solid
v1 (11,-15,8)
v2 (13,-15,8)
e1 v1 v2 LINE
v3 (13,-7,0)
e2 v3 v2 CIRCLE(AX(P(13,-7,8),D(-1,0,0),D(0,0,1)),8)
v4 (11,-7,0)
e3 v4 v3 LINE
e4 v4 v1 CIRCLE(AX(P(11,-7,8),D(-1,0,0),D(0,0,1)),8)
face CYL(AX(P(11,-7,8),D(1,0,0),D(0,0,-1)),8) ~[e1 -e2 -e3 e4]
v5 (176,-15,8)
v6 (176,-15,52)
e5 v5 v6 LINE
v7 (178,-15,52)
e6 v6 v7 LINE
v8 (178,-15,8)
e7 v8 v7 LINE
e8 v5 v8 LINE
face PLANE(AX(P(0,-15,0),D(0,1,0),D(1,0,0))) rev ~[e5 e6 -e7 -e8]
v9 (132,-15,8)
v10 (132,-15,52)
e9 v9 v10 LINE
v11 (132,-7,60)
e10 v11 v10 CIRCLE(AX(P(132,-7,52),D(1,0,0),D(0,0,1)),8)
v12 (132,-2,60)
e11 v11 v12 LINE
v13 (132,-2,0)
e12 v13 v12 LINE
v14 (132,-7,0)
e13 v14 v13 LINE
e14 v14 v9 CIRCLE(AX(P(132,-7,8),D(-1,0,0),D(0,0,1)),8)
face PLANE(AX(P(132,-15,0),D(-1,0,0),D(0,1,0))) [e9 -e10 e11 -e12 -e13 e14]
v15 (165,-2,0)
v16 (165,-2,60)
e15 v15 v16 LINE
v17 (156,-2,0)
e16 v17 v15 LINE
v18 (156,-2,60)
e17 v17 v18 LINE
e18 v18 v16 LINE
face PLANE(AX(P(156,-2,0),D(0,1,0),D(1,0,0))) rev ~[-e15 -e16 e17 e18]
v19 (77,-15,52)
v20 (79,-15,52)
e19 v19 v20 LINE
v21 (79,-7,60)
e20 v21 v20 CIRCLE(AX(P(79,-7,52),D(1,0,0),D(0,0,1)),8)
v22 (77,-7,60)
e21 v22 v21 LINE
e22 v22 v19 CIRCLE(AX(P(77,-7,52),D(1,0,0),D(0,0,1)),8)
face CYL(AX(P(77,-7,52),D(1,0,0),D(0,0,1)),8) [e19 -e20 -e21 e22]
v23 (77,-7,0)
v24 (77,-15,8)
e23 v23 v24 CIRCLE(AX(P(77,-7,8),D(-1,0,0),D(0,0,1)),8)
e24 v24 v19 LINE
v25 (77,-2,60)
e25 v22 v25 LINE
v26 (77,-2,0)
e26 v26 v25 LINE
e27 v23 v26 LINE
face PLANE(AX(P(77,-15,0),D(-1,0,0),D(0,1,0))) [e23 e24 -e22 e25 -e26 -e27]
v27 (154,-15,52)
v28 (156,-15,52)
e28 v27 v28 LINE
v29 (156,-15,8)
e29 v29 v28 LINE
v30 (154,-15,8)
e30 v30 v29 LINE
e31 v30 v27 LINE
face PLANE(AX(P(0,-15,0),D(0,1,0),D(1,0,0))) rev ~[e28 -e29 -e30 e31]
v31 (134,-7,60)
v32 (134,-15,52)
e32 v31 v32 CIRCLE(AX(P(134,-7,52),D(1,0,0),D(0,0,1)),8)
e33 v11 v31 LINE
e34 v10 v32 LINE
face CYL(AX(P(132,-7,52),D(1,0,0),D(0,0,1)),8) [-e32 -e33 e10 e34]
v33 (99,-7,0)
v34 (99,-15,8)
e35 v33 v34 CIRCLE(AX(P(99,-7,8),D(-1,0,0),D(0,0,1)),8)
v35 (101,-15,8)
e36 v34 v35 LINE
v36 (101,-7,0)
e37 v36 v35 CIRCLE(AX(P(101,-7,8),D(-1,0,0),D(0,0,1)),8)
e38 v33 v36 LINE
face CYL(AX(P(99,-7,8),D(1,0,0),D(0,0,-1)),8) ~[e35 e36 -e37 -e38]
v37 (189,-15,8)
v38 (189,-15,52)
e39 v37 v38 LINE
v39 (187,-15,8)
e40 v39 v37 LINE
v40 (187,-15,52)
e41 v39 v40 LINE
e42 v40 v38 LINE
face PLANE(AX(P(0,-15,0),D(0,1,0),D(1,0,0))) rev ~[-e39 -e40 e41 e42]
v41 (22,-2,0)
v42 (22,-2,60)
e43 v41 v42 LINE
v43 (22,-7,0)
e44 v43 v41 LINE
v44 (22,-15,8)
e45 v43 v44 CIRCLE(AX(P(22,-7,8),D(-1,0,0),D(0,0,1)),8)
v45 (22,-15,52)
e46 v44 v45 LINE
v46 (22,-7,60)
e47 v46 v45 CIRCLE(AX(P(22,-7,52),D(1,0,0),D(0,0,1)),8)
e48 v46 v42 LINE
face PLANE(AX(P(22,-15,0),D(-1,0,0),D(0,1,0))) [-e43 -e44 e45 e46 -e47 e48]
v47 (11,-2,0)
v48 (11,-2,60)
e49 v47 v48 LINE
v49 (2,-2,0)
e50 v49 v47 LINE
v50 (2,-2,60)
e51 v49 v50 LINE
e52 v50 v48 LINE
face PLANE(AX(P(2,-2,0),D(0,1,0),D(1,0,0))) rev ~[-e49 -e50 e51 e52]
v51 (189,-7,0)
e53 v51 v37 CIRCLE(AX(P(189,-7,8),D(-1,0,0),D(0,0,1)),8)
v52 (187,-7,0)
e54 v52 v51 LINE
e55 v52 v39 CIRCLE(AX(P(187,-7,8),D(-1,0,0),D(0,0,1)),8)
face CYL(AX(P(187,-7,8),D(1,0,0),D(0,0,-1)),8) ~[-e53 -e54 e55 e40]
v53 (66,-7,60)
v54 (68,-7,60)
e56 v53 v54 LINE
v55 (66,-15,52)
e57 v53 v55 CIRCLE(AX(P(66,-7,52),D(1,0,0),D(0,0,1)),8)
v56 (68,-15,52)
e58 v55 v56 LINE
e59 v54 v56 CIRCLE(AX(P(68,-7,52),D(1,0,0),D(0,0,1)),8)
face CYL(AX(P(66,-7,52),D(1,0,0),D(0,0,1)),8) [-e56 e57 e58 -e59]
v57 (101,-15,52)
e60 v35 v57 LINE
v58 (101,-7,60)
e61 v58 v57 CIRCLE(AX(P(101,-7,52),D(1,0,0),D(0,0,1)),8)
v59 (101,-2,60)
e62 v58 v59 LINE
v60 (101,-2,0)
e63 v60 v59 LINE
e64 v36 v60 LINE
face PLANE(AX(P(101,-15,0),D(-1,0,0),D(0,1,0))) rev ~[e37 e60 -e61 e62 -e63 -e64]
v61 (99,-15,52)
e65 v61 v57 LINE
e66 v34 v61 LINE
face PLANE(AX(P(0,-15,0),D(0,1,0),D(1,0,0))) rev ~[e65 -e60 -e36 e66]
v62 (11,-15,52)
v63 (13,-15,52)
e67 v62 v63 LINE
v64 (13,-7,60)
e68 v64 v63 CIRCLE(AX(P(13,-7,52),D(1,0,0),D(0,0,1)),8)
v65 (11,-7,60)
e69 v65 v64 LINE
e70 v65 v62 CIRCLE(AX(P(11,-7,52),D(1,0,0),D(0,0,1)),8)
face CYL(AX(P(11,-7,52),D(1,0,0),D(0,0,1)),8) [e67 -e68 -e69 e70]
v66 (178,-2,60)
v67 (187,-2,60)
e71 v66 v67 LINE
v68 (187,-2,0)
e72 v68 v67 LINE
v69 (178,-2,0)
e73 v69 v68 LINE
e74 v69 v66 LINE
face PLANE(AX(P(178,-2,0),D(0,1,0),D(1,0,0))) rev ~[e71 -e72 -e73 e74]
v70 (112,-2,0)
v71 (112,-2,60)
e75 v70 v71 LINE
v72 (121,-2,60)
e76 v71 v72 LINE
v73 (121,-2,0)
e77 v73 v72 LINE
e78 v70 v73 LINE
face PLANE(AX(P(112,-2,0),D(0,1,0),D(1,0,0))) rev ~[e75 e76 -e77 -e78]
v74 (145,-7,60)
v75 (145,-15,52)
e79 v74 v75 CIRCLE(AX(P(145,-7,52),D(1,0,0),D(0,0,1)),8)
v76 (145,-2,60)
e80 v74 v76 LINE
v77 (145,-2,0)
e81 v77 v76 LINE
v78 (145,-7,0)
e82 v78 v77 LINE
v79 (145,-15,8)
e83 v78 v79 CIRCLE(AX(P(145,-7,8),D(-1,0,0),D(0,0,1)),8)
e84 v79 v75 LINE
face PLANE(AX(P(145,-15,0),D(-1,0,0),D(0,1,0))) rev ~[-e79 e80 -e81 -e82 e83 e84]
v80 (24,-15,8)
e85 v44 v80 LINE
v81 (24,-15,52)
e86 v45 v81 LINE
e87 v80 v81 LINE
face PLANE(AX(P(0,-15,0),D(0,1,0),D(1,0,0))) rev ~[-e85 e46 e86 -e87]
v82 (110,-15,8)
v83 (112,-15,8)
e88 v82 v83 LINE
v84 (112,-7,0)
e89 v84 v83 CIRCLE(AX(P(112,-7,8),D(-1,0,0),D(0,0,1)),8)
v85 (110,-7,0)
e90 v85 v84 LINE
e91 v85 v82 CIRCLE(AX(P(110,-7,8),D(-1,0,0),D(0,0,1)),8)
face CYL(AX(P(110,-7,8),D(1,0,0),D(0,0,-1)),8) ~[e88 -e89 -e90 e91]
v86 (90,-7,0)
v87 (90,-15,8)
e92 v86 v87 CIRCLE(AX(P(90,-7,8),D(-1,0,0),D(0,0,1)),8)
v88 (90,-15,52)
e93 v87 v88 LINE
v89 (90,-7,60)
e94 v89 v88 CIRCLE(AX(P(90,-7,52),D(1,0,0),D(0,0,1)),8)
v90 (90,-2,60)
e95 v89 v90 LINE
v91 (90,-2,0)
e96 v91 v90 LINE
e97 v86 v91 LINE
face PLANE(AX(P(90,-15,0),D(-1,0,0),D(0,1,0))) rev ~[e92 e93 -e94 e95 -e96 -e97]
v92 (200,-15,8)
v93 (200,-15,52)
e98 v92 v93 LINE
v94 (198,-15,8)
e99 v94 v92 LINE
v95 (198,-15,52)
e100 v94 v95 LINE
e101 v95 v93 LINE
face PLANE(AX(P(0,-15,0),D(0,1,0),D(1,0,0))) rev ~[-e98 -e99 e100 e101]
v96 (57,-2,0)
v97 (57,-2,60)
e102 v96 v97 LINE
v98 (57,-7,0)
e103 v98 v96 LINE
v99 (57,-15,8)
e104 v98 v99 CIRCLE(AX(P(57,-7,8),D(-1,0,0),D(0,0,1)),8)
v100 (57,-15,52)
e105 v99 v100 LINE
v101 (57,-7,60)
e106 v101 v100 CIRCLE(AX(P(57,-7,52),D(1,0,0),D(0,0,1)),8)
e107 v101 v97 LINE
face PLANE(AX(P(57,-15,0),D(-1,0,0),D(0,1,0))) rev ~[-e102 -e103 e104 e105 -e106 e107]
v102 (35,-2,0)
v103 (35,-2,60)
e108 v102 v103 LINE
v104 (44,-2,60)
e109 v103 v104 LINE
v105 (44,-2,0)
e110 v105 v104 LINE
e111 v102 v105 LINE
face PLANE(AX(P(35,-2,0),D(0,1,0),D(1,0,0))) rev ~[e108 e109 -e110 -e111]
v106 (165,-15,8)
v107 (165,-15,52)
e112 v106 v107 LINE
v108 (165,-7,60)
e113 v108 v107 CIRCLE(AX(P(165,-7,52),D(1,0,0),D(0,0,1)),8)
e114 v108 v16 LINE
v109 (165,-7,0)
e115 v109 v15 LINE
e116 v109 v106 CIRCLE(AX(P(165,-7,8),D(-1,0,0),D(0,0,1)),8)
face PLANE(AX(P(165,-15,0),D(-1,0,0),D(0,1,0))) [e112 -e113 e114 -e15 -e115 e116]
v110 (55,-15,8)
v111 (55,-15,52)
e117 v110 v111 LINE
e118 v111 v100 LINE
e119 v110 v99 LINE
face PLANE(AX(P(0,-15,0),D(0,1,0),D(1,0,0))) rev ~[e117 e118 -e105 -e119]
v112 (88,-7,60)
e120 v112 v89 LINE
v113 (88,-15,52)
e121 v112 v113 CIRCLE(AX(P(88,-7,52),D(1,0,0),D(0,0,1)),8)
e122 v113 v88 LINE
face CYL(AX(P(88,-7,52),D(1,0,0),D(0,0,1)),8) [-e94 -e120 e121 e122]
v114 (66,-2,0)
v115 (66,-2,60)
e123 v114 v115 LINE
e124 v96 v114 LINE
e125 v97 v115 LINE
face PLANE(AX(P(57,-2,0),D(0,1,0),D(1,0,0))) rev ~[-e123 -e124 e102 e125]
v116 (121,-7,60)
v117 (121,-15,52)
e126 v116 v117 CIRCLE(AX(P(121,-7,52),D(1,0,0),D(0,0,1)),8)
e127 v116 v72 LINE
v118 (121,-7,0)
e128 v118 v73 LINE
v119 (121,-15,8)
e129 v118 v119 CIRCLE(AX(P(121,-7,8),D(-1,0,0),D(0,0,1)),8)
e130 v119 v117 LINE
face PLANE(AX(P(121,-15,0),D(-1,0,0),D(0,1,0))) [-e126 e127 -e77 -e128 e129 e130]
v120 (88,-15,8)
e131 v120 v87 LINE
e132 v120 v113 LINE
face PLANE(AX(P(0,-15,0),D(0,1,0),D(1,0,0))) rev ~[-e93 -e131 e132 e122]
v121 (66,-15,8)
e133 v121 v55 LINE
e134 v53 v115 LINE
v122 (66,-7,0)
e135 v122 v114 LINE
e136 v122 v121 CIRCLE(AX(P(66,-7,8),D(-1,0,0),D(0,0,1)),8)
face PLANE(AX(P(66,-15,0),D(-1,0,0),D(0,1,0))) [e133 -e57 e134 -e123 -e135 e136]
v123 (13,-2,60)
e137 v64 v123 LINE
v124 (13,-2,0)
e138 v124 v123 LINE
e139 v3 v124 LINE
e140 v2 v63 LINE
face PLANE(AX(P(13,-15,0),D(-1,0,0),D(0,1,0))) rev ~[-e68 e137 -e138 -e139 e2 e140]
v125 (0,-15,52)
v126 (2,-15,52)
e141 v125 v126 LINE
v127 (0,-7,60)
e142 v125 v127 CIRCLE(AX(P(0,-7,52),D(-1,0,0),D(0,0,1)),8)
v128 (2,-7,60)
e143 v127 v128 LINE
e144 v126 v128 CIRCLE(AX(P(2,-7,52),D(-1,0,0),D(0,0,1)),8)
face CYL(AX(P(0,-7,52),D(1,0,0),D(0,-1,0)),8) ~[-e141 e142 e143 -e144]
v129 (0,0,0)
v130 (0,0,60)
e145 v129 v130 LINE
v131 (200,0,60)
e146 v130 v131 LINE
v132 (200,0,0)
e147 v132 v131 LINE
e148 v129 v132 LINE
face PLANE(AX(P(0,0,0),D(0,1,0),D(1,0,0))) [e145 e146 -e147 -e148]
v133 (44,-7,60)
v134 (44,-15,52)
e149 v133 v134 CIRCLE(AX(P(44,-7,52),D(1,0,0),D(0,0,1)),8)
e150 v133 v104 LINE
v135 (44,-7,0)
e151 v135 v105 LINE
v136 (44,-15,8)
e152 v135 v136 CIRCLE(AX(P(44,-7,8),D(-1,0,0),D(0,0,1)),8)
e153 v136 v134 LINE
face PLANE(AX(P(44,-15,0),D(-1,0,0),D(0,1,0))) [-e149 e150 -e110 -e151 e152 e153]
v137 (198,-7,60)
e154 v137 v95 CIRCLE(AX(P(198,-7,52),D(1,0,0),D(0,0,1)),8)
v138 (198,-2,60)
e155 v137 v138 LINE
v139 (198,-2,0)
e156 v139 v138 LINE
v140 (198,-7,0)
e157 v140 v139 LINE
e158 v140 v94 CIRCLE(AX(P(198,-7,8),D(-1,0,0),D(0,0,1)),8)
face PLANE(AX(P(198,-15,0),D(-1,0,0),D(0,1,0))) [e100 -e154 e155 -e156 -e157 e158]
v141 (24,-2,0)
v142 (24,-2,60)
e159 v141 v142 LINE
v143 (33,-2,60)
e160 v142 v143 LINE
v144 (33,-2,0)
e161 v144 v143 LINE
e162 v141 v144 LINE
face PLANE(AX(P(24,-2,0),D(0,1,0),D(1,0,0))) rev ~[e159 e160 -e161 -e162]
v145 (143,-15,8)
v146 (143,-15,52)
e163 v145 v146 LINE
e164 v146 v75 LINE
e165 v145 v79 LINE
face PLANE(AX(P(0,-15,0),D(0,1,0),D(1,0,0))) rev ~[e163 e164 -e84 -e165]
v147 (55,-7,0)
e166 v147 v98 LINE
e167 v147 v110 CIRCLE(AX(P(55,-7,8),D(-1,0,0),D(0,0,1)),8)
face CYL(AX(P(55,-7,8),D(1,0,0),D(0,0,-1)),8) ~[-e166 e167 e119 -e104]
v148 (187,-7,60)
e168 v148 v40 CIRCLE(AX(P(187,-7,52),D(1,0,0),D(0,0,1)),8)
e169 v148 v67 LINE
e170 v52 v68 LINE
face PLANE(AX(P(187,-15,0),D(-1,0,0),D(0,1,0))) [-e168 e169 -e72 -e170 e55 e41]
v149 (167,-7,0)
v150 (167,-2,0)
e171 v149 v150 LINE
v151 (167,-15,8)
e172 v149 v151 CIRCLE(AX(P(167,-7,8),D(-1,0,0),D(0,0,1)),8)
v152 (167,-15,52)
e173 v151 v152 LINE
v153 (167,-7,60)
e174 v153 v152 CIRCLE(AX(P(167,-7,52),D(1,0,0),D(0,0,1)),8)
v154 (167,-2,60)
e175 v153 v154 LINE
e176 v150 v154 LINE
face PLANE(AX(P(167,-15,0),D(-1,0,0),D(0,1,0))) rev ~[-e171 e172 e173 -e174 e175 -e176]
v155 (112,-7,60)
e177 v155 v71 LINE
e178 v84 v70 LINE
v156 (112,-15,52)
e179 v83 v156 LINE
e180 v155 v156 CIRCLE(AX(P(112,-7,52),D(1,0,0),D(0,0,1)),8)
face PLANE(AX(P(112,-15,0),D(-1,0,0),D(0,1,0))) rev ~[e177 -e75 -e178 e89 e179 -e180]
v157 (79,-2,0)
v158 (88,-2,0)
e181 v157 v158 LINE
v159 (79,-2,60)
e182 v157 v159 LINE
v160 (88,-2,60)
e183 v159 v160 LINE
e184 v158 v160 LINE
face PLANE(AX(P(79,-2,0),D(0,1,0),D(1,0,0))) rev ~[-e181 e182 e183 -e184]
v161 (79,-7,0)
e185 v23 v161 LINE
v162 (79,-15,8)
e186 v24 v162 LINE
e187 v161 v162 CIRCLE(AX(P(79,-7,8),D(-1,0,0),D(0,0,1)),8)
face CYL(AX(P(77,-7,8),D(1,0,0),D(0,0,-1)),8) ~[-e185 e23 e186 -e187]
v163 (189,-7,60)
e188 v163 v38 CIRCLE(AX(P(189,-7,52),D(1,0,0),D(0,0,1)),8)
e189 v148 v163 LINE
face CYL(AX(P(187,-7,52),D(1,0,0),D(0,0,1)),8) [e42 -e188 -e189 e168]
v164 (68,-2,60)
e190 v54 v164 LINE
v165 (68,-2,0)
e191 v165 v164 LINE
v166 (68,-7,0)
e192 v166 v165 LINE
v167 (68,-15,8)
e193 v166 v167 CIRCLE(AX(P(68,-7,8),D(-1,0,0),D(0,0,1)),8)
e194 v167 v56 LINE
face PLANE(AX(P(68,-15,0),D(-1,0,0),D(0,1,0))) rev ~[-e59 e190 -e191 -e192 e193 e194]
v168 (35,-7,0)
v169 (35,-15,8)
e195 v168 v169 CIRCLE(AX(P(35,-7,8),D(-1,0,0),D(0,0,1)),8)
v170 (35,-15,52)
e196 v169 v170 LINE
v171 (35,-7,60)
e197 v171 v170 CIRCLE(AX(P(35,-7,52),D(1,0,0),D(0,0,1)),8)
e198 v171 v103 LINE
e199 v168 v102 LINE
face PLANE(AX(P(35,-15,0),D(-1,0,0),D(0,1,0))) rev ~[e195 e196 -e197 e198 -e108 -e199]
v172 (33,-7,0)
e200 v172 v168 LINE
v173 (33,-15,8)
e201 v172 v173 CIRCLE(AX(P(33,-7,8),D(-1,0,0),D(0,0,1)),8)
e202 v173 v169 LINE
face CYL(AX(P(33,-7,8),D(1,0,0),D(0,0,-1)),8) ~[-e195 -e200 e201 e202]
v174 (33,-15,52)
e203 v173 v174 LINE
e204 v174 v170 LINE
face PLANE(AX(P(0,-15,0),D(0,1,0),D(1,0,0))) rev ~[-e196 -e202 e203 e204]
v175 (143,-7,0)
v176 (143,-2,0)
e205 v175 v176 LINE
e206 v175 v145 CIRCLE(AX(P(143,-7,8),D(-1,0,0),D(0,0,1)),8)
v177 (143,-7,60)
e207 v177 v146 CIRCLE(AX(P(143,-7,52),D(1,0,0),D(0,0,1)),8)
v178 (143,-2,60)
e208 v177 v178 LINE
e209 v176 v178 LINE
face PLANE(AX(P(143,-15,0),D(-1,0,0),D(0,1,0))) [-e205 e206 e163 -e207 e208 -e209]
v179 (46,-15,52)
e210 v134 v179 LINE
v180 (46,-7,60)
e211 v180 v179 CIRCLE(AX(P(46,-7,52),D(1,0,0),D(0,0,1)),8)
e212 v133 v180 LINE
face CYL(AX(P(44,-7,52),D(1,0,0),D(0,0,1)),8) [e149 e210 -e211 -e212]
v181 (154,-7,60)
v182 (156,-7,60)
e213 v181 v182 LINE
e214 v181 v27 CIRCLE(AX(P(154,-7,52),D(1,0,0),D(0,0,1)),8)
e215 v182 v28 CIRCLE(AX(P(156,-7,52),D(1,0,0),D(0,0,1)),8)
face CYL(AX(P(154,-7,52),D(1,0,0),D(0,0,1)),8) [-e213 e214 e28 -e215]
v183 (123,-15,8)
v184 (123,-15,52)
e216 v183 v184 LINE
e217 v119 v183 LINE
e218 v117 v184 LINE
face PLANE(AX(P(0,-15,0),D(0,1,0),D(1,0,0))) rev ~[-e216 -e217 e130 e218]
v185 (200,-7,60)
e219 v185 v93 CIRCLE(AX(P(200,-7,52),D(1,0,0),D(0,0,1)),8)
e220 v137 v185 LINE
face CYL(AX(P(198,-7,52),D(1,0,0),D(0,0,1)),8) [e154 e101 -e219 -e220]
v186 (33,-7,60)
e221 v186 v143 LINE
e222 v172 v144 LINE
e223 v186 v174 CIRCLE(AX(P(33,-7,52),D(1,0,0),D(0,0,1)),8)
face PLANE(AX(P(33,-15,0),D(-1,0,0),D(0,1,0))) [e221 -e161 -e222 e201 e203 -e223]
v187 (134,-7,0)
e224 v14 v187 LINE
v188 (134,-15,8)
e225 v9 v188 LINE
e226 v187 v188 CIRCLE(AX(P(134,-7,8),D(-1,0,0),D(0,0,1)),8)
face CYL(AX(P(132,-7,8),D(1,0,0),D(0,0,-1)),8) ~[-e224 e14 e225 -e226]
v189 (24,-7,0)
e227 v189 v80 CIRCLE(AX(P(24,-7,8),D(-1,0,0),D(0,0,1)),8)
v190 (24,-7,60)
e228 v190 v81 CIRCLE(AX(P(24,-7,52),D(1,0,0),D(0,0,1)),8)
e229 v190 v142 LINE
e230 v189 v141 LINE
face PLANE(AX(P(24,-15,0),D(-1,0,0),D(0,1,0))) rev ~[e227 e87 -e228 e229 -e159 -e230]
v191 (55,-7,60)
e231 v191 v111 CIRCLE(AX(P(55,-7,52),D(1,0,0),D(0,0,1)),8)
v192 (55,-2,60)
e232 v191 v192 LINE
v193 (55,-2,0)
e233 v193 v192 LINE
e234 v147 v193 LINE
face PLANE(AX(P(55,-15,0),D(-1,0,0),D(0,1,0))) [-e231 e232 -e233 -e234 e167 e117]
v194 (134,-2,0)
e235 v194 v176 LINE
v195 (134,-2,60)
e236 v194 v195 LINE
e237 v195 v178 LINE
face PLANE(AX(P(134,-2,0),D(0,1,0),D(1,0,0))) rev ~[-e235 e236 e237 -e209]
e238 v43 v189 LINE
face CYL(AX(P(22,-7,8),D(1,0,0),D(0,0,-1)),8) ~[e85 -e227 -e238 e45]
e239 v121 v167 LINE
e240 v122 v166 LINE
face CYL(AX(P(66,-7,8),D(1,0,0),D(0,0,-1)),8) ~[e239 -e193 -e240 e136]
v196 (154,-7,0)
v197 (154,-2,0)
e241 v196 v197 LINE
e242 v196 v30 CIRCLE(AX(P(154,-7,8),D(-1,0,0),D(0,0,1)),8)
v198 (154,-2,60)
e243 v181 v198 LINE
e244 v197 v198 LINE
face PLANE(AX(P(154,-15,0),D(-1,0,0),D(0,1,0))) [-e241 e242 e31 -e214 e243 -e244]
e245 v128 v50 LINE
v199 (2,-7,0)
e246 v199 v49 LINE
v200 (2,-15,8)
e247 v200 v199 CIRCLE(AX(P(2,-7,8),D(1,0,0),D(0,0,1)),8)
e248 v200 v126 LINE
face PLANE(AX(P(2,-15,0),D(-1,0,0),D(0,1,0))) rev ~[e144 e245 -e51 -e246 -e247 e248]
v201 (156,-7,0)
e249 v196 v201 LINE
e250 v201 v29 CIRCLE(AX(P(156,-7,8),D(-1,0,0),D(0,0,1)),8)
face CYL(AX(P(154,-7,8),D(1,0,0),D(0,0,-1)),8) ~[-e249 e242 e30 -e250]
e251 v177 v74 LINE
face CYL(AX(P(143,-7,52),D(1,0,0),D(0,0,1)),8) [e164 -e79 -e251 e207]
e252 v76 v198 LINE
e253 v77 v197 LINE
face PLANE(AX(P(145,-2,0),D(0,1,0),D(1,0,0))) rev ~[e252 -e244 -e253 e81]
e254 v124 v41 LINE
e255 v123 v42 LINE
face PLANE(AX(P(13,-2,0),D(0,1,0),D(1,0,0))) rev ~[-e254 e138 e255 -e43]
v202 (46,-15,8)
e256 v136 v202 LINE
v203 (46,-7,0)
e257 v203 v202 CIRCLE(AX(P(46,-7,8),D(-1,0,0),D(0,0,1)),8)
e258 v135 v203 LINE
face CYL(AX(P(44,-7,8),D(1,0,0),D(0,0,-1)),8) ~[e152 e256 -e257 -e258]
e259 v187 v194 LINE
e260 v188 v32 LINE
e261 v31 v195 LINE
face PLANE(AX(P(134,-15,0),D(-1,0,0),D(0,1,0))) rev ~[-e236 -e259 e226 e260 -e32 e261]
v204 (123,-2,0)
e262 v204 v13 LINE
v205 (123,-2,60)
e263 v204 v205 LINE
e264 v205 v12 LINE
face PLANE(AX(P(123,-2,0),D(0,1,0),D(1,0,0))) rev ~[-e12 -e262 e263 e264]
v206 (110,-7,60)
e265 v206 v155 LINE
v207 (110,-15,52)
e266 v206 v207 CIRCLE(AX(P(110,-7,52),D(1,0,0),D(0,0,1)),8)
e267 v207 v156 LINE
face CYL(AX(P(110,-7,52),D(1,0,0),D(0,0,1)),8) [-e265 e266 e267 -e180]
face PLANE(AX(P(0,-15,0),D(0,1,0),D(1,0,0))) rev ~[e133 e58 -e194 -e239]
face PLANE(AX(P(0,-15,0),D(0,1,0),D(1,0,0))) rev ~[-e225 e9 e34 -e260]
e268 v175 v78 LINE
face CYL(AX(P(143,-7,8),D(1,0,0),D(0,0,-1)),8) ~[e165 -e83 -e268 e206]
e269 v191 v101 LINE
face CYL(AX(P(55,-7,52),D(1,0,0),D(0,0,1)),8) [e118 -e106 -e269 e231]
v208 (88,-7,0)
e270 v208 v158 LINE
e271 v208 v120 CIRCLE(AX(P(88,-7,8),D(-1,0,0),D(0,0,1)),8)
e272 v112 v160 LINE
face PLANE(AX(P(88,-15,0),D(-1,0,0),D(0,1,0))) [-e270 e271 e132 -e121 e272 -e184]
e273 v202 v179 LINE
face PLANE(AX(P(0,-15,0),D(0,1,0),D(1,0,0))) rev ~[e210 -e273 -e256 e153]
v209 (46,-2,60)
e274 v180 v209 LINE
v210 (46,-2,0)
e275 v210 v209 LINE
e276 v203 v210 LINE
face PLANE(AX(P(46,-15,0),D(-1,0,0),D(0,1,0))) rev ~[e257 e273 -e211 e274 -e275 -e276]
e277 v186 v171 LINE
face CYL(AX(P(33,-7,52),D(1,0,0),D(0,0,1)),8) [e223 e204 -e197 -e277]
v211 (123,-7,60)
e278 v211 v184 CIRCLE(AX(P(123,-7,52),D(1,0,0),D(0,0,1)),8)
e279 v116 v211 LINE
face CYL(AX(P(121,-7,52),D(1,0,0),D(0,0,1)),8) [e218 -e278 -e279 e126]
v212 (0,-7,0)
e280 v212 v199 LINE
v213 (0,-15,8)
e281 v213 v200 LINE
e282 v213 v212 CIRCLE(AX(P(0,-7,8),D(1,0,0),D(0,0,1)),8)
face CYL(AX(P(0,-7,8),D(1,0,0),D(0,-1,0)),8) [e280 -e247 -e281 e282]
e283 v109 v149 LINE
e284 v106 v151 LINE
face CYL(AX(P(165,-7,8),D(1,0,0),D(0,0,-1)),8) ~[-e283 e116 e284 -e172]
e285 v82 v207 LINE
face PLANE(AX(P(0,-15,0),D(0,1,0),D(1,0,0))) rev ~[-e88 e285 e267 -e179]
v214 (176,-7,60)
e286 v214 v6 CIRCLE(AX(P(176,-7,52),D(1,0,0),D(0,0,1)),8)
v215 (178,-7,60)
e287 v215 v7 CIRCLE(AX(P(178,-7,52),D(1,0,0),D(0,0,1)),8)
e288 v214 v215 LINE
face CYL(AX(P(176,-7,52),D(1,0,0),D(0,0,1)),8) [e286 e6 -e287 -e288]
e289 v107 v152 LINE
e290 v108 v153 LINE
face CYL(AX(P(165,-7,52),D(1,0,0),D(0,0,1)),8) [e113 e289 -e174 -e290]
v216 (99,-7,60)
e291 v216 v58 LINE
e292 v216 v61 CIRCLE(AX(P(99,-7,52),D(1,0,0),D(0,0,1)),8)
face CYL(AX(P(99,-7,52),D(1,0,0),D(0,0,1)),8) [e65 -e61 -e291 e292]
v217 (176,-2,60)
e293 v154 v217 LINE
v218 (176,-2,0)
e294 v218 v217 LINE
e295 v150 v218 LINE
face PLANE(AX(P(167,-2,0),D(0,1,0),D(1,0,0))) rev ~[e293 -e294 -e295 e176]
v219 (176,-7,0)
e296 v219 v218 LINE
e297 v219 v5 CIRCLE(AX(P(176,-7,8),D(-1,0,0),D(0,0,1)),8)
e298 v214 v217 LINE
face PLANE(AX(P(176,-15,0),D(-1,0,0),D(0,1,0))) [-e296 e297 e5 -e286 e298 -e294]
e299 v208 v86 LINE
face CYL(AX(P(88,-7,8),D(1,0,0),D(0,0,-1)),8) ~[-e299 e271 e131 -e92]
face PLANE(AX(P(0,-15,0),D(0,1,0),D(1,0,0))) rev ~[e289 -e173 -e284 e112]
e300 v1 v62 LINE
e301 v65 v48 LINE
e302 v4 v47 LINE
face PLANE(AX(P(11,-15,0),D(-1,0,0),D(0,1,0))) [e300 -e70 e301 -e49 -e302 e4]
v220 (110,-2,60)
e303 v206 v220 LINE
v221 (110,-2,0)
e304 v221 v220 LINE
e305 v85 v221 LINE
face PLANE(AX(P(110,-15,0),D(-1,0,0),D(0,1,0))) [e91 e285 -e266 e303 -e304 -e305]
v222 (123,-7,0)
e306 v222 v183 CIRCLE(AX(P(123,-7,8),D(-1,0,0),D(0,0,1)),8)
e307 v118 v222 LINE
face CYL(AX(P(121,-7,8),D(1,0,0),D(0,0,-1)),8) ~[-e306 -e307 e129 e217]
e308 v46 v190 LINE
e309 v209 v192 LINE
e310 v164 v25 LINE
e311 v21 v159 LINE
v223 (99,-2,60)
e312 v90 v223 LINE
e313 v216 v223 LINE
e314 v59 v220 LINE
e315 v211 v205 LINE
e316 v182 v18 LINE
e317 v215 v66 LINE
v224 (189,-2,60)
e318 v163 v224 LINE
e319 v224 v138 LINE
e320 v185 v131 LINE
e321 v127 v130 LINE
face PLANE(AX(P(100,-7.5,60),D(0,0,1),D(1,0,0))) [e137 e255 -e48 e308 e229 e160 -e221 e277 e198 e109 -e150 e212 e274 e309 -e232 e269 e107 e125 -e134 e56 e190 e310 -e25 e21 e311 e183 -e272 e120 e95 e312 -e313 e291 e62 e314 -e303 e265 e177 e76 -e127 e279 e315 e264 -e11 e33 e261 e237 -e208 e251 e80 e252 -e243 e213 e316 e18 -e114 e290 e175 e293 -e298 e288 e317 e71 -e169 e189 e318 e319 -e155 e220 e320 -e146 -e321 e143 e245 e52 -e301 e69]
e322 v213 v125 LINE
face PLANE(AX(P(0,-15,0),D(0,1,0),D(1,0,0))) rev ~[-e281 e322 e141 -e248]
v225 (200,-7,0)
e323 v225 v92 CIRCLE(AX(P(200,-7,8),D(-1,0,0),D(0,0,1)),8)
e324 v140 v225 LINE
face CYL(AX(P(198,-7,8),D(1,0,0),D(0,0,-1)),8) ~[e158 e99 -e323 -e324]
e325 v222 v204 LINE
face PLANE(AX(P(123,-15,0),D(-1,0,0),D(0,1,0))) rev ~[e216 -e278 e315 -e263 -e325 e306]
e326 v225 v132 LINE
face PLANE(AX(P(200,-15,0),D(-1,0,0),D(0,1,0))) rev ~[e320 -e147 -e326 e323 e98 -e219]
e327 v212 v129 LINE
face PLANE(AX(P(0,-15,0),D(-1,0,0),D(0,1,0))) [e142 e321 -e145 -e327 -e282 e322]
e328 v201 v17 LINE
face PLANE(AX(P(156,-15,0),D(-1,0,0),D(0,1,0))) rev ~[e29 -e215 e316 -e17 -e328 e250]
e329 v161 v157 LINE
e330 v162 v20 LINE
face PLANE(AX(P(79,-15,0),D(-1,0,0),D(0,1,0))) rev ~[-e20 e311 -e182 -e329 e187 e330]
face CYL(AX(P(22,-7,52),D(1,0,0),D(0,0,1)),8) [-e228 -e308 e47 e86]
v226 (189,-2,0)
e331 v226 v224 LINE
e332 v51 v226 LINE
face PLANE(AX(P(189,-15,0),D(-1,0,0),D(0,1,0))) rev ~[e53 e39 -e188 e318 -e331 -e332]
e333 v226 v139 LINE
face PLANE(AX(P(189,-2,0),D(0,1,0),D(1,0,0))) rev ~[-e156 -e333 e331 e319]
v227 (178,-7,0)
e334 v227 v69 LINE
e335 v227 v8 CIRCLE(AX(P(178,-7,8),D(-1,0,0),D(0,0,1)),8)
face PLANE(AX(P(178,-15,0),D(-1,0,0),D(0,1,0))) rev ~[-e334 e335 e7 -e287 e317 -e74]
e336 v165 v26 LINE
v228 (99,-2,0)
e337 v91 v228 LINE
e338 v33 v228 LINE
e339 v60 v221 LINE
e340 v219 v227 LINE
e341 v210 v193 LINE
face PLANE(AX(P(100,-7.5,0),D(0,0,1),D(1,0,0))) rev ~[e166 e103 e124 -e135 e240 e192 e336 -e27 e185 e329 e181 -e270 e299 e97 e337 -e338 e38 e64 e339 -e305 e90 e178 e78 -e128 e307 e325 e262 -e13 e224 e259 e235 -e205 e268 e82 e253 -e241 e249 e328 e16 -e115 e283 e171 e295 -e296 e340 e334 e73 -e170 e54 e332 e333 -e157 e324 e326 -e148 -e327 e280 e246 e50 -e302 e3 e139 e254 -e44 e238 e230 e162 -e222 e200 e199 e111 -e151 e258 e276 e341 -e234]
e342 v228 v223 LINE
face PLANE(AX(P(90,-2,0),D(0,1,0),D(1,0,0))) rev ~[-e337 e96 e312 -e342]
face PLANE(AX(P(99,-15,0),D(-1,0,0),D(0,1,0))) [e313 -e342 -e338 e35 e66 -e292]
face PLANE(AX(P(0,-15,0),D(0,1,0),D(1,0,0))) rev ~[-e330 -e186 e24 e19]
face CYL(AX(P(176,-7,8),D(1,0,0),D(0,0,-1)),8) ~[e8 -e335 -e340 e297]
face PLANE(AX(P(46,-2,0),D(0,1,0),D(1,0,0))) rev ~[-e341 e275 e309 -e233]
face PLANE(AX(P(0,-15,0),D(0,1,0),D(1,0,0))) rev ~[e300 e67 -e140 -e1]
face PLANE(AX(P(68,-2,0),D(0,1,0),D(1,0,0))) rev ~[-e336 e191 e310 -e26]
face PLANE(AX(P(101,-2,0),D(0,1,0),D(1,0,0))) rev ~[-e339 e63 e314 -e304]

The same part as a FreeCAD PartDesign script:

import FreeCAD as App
import Part
import Sketcher


def edges_at(feature, points):
    """Names of the edges that pass closest to the given points."""
    edges = feature.Shape.Edges
    near = lambda p: min(range(len(edges)), key=lambda i: edges[i].distToShape(Part.Vertex(*p))[0])
    return sorted({f"Edge{near(p) + 1}" for p in points})


def add_polygon(sketch, points):
    """Adds a closed chain of lines whose ends are joined by coincident constraints."""
    first, n = sketch.GeometryCount, len(points)
    for a, b in zip(points, points[1:] + points[:1]):
        sketch.addGeometry(Part.LineSegment(App.Vector(*a, 0), App.Vector(*b, 0)), False)
    for i in range(n):
        sketch.addConstraint(Sketcher.Constraint("Coincident", first + i, 2, first + (i + 1) % n, 1))

doc = App.newDocument("Part")
body = doc.addObject("PartDesign::Body", "Body")

sketch1 = doc.addObject("Sketcher::SketchObject", "Sketch")
body.addObject(sketch1)
sketch1.AttachmentSupport = (doc.XY_Plane, [""])
sketch1.MapMode = "FlatFace"
add_polygon(sketch1, [(145, -2), (145, -15), (154, -15), (154, -2)])
sketch1.addConstraint([
    Sketcher.Constraint("Vertical", 0),
    Sketcher.Constraint("Horizontal", 1),
    Sketcher.Constraint("Vertical", 2),
    Sketcher.Constraint("Horizontal", 3),
    Sketcher.Constraint("DistanceX", 1, 1, 1, 2, 9.0),
    Sketcher.Constraint("DistanceY", 0, 2, 0, 1, 13.0),
    Sketcher.Constraint("DistanceX", -1, 1, 0, 2, 145.0),
    Sketcher.Constraint("DistanceY", 0, 2, -1, 1, 15.0),
])
pad1 = doc.addObject("PartDesign::Pad", "Pad")
body.addObject(pad1)
pad1.Profile = sketch1
pad1.Length = 60
body2 = doc.addObject("PartDesign::Body", "Body001")

sketch2 = doc.addObject("Sketcher::SketchObject", "Sketch001")
body2.addObject(sketch2)
sketch2.AttachmentSupport = (doc.getObject("XY_Plane001"), [""])
sketch2.MapMode = "FlatFace"
add_polygon(sketch2, [(13, -2), (13, -15), (22, -15), (22, -2)])
sketch2.addConstraint([
    Sketcher.Constraint("Vertical", 0),
    Sketcher.Constraint("Horizontal", 1),
    Sketcher.Constraint("Vertical", 2),
    Sketcher.Constraint("Horizontal", 3),
    Sketcher.Constraint("DistanceX", 1, 1, 1, 2, 9.0),
    Sketcher.Constraint("DistanceY", 0, 2, 0, 1, 13.0),
    Sketcher.Constraint("DistanceX", -1, 1, 0, 2, 13.0),
    Sketcher.Constraint("DistanceY", 0, 2, -1, 1, 15.0),
])
pad2 = doc.addObject("PartDesign::Pad", "Pad001")
body2.addObject(pad2)
pad2.Profile = sketch2
pad2.Length = 60
body3 = doc.addObject("PartDesign::Body", "Body002")

sketch3 = doc.addObject("Sketcher::SketchObject", "Sketch002")
body3.addObject(sketch3)
sketch3.AttachmentSupport = (doc.getObject("XY_Plane002"), [""])
sketch3.MapMode = "FlatFace"
add_polygon(sketch3, [(24, -2), (24, -15), (33, -15), (33, -2)])
sketch3.addConstraint([
    Sketcher.Constraint("Vertical", 0),
    Sketcher.Constraint("Horizontal", 1),
    Sketcher.Constraint("Vertical", 2),
    Sketcher.Constraint("Horizontal", 3),
    Sketcher.Constraint("DistanceX", 1, 1, 1, 2, 9.0),
    Sketcher.Constraint("DistanceY", 0, 2, 0, 1, 13.0),
    Sketcher.Constraint("DistanceX", -1, 1, 0, 2, 24.0),
    Sketcher.Constraint("DistanceY", 0, 2, -1, 1, 15.0),
])
pad3 = doc.addObject("PartDesign::Pad", "Pad002")
body3.addObject(pad3)
pad3.Profile = sketch3
pad3.Length = 60
body4 = doc.addObject("PartDesign::Body", "Body003")

sketch4 = doc.addObject("Sketcher::SketchObject", "Sketch003")
body4.addObject(sketch4)
sketch4.AttachmentSupport = (doc.getObject("XY_Plane003"), [""])
sketch4.MapMode = "FlatFace"
add_polygon(sketch4, [(35, -2), (35, -15), (44, -15), (44, -2)])
sketch4.addConstraint([
    Sketcher.Constraint("Vertical", 0),
    Sketcher.Constraint("Horizontal", 1),
    Sketcher.Constraint("Vertical", 2),
    Sketcher.Constraint("Horizontal", 3),
    Sketcher.Constraint("DistanceX", 1, 1, 1, 2, 9.0),
    Sketcher.Constraint("DistanceY", 0, 2, 0, 1, 13.0),
    Sketcher.Constraint("DistanceX", -1, 1, 0, 2, 35.0),
    Sketcher.Constraint("DistanceY", 0, 2, -1, 1, 15.0),
])
pad4 = doc.addObject("PartDesign::Pad", "Pad003")
body4.addObject(pad4)
pad4.Profile = sketch4
pad4.Length = 60
body5 = doc.addObject("PartDesign::Body", "Body004")

sketch5 = doc.addObject("Sketcher::SketchObject", "Sketch004")
body5.addObject(sketch5)
sketch5.AttachmentSupport = (doc.getObject("XY_Plane004"), [""])
sketch5.MapMode = "FlatFace"
add_polygon(sketch5, [(46, -2), (46, -15), (55, -15), (55, -2)])
sketch5.addConstraint([
    Sketcher.Constraint("Vertical", 0),
    Sketcher.Constraint("Horizontal", 1),
    Sketcher.Constraint("Vertical", 2),
    Sketcher.Constraint("Horizontal", 3),
    Sketcher.Constraint("DistanceX", 1, 1, 1, 2, 9.0),
    Sketcher.Constraint("DistanceY", 0, 2, 0, 1, 13.0),
    Sketcher.Constraint("DistanceX", -1, 1, 0, 2, 46.0),
    Sketcher.Constraint("DistanceY", 0, 2, -1, 1, 15.0),
])
pad5 = doc.addObject("PartDesign::Pad", "Pad004")
body5.addObject(pad5)
pad5.Profile = sketch5
pad5.Length = 60
body6 = doc.addObject("PartDesign::Body", "Body005")

sketch6 = doc.addObject("Sketcher::SketchObject", "Sketch005")
body6.addObject(sketch6)
sketch6.AttachmentSupport = (doc.getObject("XY_Plane005"), [""])
sketch6.MapMode = "FlatFace"
add_polygon(sketch6, [(57, -2), (57, -15), (66, -15), (66, -2)])
sketch6.addConstraint([
    Sketcher.Constraint("Vertical", 0),
    Sketcher.Constraint("Horizontal", 1),
    Sketcher.Constraint("Vertical", 2),
    Sketcher.Constraint("Horizontal", 3),
    Sketcher.Constraint("DistanceX", 1, 1, 1, 2, 9.0),
    Sketcher.Constraint("DistanceY", 0, 2, 0, 1, 13.0),
    Sketcher.Constraint("DistanceX", -1, 1, 0, 2, 57.0),
    Sketcher.Constraint("DistanceY", 0, 2, -1, 1, 15.0),
])
pad6 = doc.addObject("PartDesign::Pad", "Pad005")
body6.addObject(pad6)
pad6.Profile = sketch6
pad6.Length = 60
body7 = doc.addObject("PartDesign::Body", "Body006")

sketch7 = doc.addObject("Sketcher::SketchObject", "Sketch006")
body7.addObject(sketch7)
sketch7.AttachmentSupport = (doc.getObject("XY_Plane006"), [""])
sketch7.MapMode = "FlatFace"
add_polygon(sketch7, [(68, -2), (68, -15), (77, -15), (77, -2)])
sketch7.addConstraint([
    Sketcher.Constraint("Vertical", 0),
    Sketcher.Constraint("Horizontal", 1),
    Sketcher.Constraint("Vertical", 2),
    Sketcher.Constraint("Horizontal", 3),
    Sketcher.Constraint("DistanceX", 1, 1, 1, 2, 9.0),
    Sketcher.Constraint("DistanceY", 0, 2, 0, 1, 13.0),
    Sketcher.Constraint("DistanceX", -1, 1, 0, 2, 68.0),
    Sketcher.Constraint("DistanceY", 0, 2, -1, 1, 15.0),
])
pad7 = doc.addObject("PartDesign::Pad", "Pad006")
body7.addObject(pad7)
pad7.Profile = sketch7
pad7.Length = 60
body8 = doc.addObject("PartDesign::Body", "Body007")

sketch8 = doc.addObject("Sketcher::SketchObject", "Sketch007")
body8.addObject(sketch8)
sketch8.AttachmentSupport = (doc.getObject("XY_Plane007"), [""])
sketch8.MapMode = "FlatFace"
add_polygon(sketch8, [(79, -2), (79, -15), (88, -15), (88, -2)])
sketch8.addConstraint([
    Sketcher.Constraint("Vertical", 0),
    Sketcher.Constraint("Horizontal", 1),
    Sketcher.Constraint("Vertical", 2),
    Sketcher.Constraint("Horizontal", 3),
    Sketcher.Constraint("DistanceX", 1, 1, 1, 2, 9.0),
    Sketcher.Constraint("DistanceY", 0, 2, 0, 1, 13.0),
    Sketcher.Constraint("DistanceX", -1, 1, 0, 2, 79.0),
    Sketcher.Constraint("DistanceY", 0, 2, -1, 1, 15.0),
])
pad8 = doc.addObject("PartDesign::Pad", "Pad007")
body8.addObject(pad8)
pad8.Profile = sketch8
pad8.Length = 60
body9 = doc.addObject("PartDesign::Body", "Body008")

sketch9 = doc.addObject("Sketcher::SketchObject", "Sketch008")
body9.addObject(sketch9)
sketch9.AttachmentSupport = (doc.getObject("XY_Plane008"), [""])
sketch9.MapMode = "FlatFace"
add_polygon(sketch9, [(90, -2), (90, -15), (99, -15), (99, -2)])
sketch9.addConstraint([
    Sketcher.Constraint("Vertical", 0),
    Sketcher.Constraint("Horizontal", 1),
    Sketcher.Constraint("Vertical", 2),
    Sketcher.Constraint("Horizontal", 3),
    Sketcher.Constraint("DistanceX", 1, 1, 1, 2, 9.0),
    Sketcher.Constraint("DistanceY", 0, 2, 0, 1, 13.0),
    Sketcher.Constraint("DistanceX", -1, 1, 0, 2, 90.0),
    Sketcher.Constraint("DistanceY", 0, 2, -1, 1, 15.0),
])
pad9 = doc.addObject("PartDesign::Pad", "Pad008")
body9.addObject(pad9)
pad9.Profile = sketch9
pad9.Length = 60
body10 = doc.addObject("PartDesign::Body", "Body009")

sketch10 = doc.addObject("Sketcher::SketchObject", "Sketch009")
body10.addObject(sketch10)
sketch10.AttachmentSupport = (doc.getObject("XY_Plane009"), [""])
sketch10.MapMode = "FlatFace"
add_polygon(sketch10, [(101, -2), (101, -15), (110, -15), (110, -2)])
sketch10.addConstraint([
    Sketcher.Constraint("Vertical", 0),
    Sketcher.Constraint("Horizontal", 1),
    Sketcher.Constraint("Vertical", 2),
    Sketcher.Constraint("Horizontal", 3),
    Sketcher.Constraint("DistanceX", 1, 1, 1, 2, 9.0),
    Sketcher.Constraint("DistanceY", 0, 2, 0, 1, 13.0),
    Sketcher.Constraint("DistanceX", -1, 1, 0, 2, 101.0),
    Sketcher.Constraint("DistanceY", 0, 2, -1, 1, 15.0),
])
pad10 = doc.addObject("PartDesign::Pad", "Pad009")
body10.addObject(pad10)
pad10.Profile = sketch10
pad10.Length = 60
body11 = doc.addObject("PartDesign::Body", "Body010")

sketch11 = doc.addObject("Sketcher::SketchObject", "Sketch010")
body11.addObject(sketch11)
sketch11.AttachmentSupport = (doc.getObject("XY_Plane010"), [""])
sketch11.MapMode = "FlatFace"
add_polygon(sketch11, [(112, -2), (112, -15), (121, -15), (121, -2)])
sketch11.addConstraint([
    Sketcher.Constraint("Vertical", 0),
    Sketcher.Constraint("Horizontal", 1),
    Sketcher.Constraint("Vertical", 2),
    Sketcher.Constraint("Horizontal", 3),
    Sketcher.Constraint("DistanceX", 1, 1, 1, 2, 9.0),
    Sketcher.Constraint("DistanceY", 0, 2, 0, 1, 13.0),
    Sketcher.Constraint("DistanceX", -1, 1, 0, 2, 112.0),
    Sketcher.Constraint("DistanceY", 0, 2, -1, 1, 15.0),
])
pad11 = doc.addObject("PartDesign::Pad", "Pad010")
body11.addObject(pad11)
pad11.Profile = sketch11
pad11.Length = 60
body12 = doc.addObject("PartDesign::Body", "Body011")

sketch12 = doc.addObject("Sketcher::SketchObject", "Sketch011")
body12.addObject(sketch12)
sketch12.AttachmentSupport = (doc.getObject("XY_Plane011"), [""])
sketch12.MapMode = "FlatFace"
add_polygon(sketch12, [(123, -2), (123, -15), (132, -15), (132, -2)])
sketch12.addConstraint([
    Sketcher.Constraint("Vertical", 0),
    Sketcher.Constraint("Horizontal", 1),
    Sketcher.Constraint("Vertical", 2),
    Sketcher.Constraint("Horizontal", 3),
    Sketcher.Constraint("DistanceX", 1, 1, 1, 2, 9.0),
    Sketcher.Constraint("DistanceY", 0, 2, 0, 1, 13.0),
    Sketcher.Constraint("DistanceX", -1, 1, 0, 2, 123.0),
    Sketcher.Constraint("DistanceY", 0, 2, -1, 1, 15.0),
])
pad12 = doc.addObject("PartDesign::Pad", "Pad011")
body12.addObject(pad12)
pad12.Profile = sketch12
pad12.Length = 60
body13 = doc.addObject("PartDesign::Body", "Body012")

sketch13 = doc.addObject("Sketcher::SketchObject", "Sketch012")
body13.addObject(sketch13)
sketch13.AttachmentSupport = (doc.getObject("XY_Plane012"), [""])
sketch13.MapMode = "FlatFace"
add_polygon(sketch13, [(134, -2), (134, -15), (143, -15), (143, -2)])
sketch13.addConstraint([
    Sketcher.Constraint("Vertical", 0),
    Sketcher.Constraint("Horizontal", 1),
    Sketcher.Constraint("Vertical", 2),
    Sketcher.Constraint("Horizontal", 3),
    Sketcher.Constraint("DistanceX", 1, 1, 1, 2, 9.0),
    Sketcher.Constraint("DistanceY", 0, 2, 0, 1, 13.0),
    Sketcher.Constraint("DistanceX", -1, 1, 0, 2, 134.0),
    Sketcher.Constraint("DistanceY", 0, 2, -1, 1, 15.0),
])
pad13 = doc.addObject("PartDesign::Pad", "Pad012")
body13.addObject(pad13)
pad13.Profile = sketch13
pad13.Length = 60
body14 = doc.addObject("PartDesign::Body", "Body013")

sketch14 = doc.addObject("Sketcher::SketchObject", "Sketch013")
body14.addObject(sketch14)
sketch14.AttachmentSupport = (doc.getObject("XY_Plane013"), [""])
sketch14.MapMode = "FlatFace"
add_polygon(sketch14, [(156, -2), (156, -15), (165, -15), (165, -2)])
sketch14.addConstraint([
    Sketcher.Constraint("Vertical", 0),
    Sketcher.Constraint("Horizontal", 1),
    Sketcher.Constraint("Vertical", 2),
    Sketcher.Constraint("Horizontal", 3),
    Sketcher.Constraint("DistanceX", 1, 1, 1, 2, 9.0),
    Sketcher.Constraint("DistanceY", 0, 2, 0, 1, 13.0),
    Sketcher.Constraint("DistanceX", -1, 1, 0, 2, 156.0),
    Sketcher.Constraint("DistanceY", 0, 2, -1, 1, 15.0),
])
pad14 = doc.addObject("PartDesign::Pad", "Pad013")
body14.addObject(pad14)
pad14.Profile = sketch14
pad14.Length = 60
body15 = doc.addObject("PartDesign::Body", "Body014")

sketch15 = doc.addObject("Sketcher::SketchObject", "Sketch014")
body15.addObject(sketch15)
sketch15.AttachmentSupport = (doc.getObject("XY_Plane014"), [""])
sketch15.MapMode = "FlatFace"
add_polygon(sketch15, [(167, -2), (167, -15), (176, -15), (176, -2)])
sketch15.addConstraint([
    Sketcher.Constraint("Vertical", 0),
    Sketcher.Constraint("Horizontal", 1),
    Sketcher.Constraint("Vertical", 2),
    Sketcher.Constraint("Horizontal", 3),
    Sketcher.Constraint("DistanceX", 1, 1, 1, 2, 9.0),
    Sketcher.Constraint("DistanceY", 0, 2, 0, 1, 13.0),
    Sketcher.Constraint("DistanceX", -1, 1, 0, 2, 167.0),
    Sketcher.Constraint("DistanceY", 0, 2, -1, 1, 15.0),
])
pad15 = doc.addObject("PartDesign::Pad", "Pad014")
body15.addObject(pad15)
pad15.Profile = sketch15
pad15.Length = 60
body16 = doc.addObject("PartDesign::Body", "Body015")

sketch16 = doc.addObject("Sketcher::SketchObject", "Sketch015")
body16.addObject(sketch16)
sketch16.AttachmentSupport = (doc.getObject("XY_Plane015"), [""])
sketch16.MapMode = "FlatFace"
add_polygon(sketch16, [(178, -2), (178, -15), (187, -15), (187, -2)])
sketch16.addConstraint([
    Sketcher.Constraint("Vertical", 0),
    Sketcher.Constraint("Horizontal", 1),
    Sketcher.Constraint("Vertical", 2),
    Sketcher.Constraint("Horizontal", 3),
    Sketcher.Constraint("DistanceX", 1, 1, 1, 2, 9.0),
    Sketcher.Constraint("DistanceY", 0, 2, 0, 1, 13.0),
    Sketcher.Constraint("DistanceX", -1, 1, 0, 2, 178.0),
    Sketcher.Constraint("DistanceY", 0, 2, -1, 1, 15.0),
])
pad16 = doc.addObject("PartDesign::Pad", "Pad015")
body16.addObject(pad16)
pad16.Profile = sketch16
pad16.Length = 60
body17 = doc.addObject("PartDesign::Body", "Body016")

sketch17 = doc.addObject("Sketcher::SketchObject", "Sketch016")
body17.addObject(sketch17)
sketch17.AttachmentSupport = (doc.getObject("XY_Plane016"), [""])
sketch17.MapMode = "FlatFace"
add_polygon(sketch17, [(189, -2), (189, -15), (198, -15), (198, -2)])
sketch17.addConstraint([
    Sketcher.Constraint("Vertical", 0),
    Sketcher.Constraint("Horizontal", 1),
    Sketcher.Constraint("Vertical", 2),
    Sketcher.Constraint("Horizontal", 3),
    Sketcher.Constraint("DistanceX", 1, 1, 1, 2, 9.0),
    Sketcher.Constraint("DistanceY", 0, 2, 0, 1, 13.0),
    Sketcher.Constraint("DistanceX", -1, 1, 0, 2, 189.0),
    Sketcher.Constraint("DistanceY", 0, 2, -1, 1, 15.0),
])
pad17 = doc.addObject("PartDesign::Pad", "Pad016")
body17.addObject(pad17)
pad17.Profile = sketch17
pad17.Length = 60
body18 = doc.addObject("PartDesign::Body", "Body017")
body18.AllowCompound = True

sketch18 = doc.addObject("Sketcher::SketchObject", "Sketch017")
body18.addObject(sketch18)
sketch18.AttachmentSupport = (doc.getObject("XY_Plane017"), [""])
sketch18.MapMode = "FlatFace"
add_polygon(sketch18, [(2, -2), (2, -15), (11, -15), (11, -2)])
sketch18.addConstraint([
    Sketcher.Constraint("Vertical", 0),
    Sketcher.Constraint("Horizontal", 1),
    Sketcher.Constraint("Vertical", 2),
    Sketcher.Constraint("Horizontal", 3),
    Sketcher.Constraint("DistanceX", 1, 1, 1, 2, 9.0),
    Sketcher.Constraint("DistanceY", 0, 2, 0, 1, 13.0),
    Sketcher.Constraint("DistanceX", -1, 1, 0, 2, 2.0),
    Sketcher.Constraint("DistanceY", 0, 2, -1, 1, 15.0),
])
pad18 = doc.addObject("PartDesign::Pad", "Pad017")
body18.addObject(pad18)
pad18.Profile = sketch18
pad18.Length = 60
doc.recompute()

boolean = doc.addObject("PartDesign::Boolean", "Boolean")
body18.addObject(boolean)
boolean.Type = "Fuse"
boolean.addObjects([body])
doc.recompute()

boolean2 = doc.addObject("PartDesign::Boolean", "Boolean001")
body18.addObject(boolean2)
boolean2.Type = "Fuse"
boolean2.addObjects([body2])
doc.recompute()

boolean3 = doc.addObject("PartDesign::Boolean", "Boolean002")
body18.addObject(boolean3)
boolean3.Type = "Fuse"
boolean3.addObjects([body3])
doc.recompute()

boolean4 = doc.addObject("PartDesign::Boolean", "Boolean003")
body18.addObject(boolean4)
boolean4.Type = "Fuse"
boolean4.addObjects([body4])
doc.recompute()

boolean5 = doc.addObject("PartDesign::Boolean", "Boolean004")
body18.addObject(boolean5)
boolean5.Type = "Fuse"
boolean5.addObjects([body5])
doc.recompute()

boolean6 = doc.addObject("PartDesign::Boolean", "Boolean005")
body18.addObject(boolean6)
boolean6.Type = "Fuse"
boolean6.addObjects([body6])
doc.recompute()

boolean7 = doc.addObject("PartDesign::Boolean", "Boolean006")
body18.addObject(boolean7)
boolean7.Type = "Fuse"
boolean7.addObjects([body7])
doc.recompute()

boolean8 = doc.addObject("PartDesign::Boolean", "Boolean007")
body18.addObject(boolean8)
boolean8.Type = "Fuse"
boolean8.addObjects([body8])
doc.recompute()

boolean9 = doc.addObject("PartDesign::Boolean", "Boolean008")
body18.addObject(boolean9)
boolean9.Type = "Fuse"
boolean9.addObjects([body9])
doc.recompute()

boolean10 = doc.addObject("PartDesign::Boolean", "Boolean009")
body18.addObject(boolean10)
boolean10.Type = "Fuse"
boolean10.addObjects([body10])
doc.recompute()

boolean11 = doc.addObject("PartDesign::Boolean", "Boolean010")
body18.addObject(boolean11)
boolean11.Type = "Fuse"
boolean11.addObjects([body11])
doc.recompute()

boolean12 = doc.addObject("PartDesign::Boolean", "Boolean011")
body18.addObject(boolean12)
boolean12.Type = "Fuse"
boolean12.addObjects([body12])
doc.recompute()

boolean13 = doc.addObject("PartDesign::Boolean", "Boolean012")
body18.addObject(boolean13)
boolean13.Type = "Fuse"
boolean13.addObjects([body13])
doc.recompute()

boolean14 = doc.addObject("PartDesign::Boolean", "Boolean013")
body18.addObject(boolean14)
boolean14.Type = "Fuse"
boolean14.addObjects([body14])
doc.recompute()

boolean15 = doc.addObject("PartDesign::Boolean", "Boolean014")
body18.addObject(boolean15)
boolean15.Type = "Fuse"
boolean15.addObjects([body15])
doc.recompute()

boolean16 = doc.addObject("PartDesign::Boolean", "Boolean015")
body18.addObject(boolean16)
boolean16.Type = "Fuse"
boolean16.addObjects([body16])
doc.recompute()

boolean17 = doc.addObject("PartDesign::Boolean", "Boolean016")
body18.addObject(boolean17)
boolean17.Type = "Fuse"
boolean17.addObjects([body17])
body19 = doc.addObject("PartDesign::Body", "Body018")

sketch19 = doc.addObject("Sketcher::SketchObject", "Sketch018")
body19.addObject(sketch19)
sketch19.AttachmentSupport = (doc.getObject("XY_Plane018"), [""])
sketch19.MapMode = "FlatFace"
add_polygon(sketch19, [(0, 0), (0, -15), (200, -15), (200, 0)])
sketch19.addConstraint([
    Sketcher.Constraint("Vertical", 0),
    Sketcher.Constraint("Horizontal", 1),
    Sketcher.Constraint("Vertical", 2),
    Sketcher.Constraint("Horizontal", 3),
    Sketcher.Constraint("Coincident", 3, 2, -1, 1),
    Sketcher.Constraint("DistanceX", 1, 1, 1, 2, 200.0),
    Sketcher.Constraint("DistanceY", 0, 2, 0, 1, 15.0),
])
pad19 = doc.addObject("PartDesign::Pad", "Pad018")
body19.addObject(pad19)
pad19.Profile = sketch19
pad19.Length = 60
doc.recompute()

boolean18 = doc.addObject("PartDesign::Boolean", "Boolean017")
body19.addObject(boolean18)
boolean18.Type = "Cut"
boolean18.addObjects([body18])
doc.recompute()

fillet = doc.addObject("PartDesign::Fillet", "Fillet")
body19.addObject(fillet)
fillet.Base = (boolean18, edges_at(boolean18, [
    (1, -15, 0),
    (1, -15, 60),
    (199, -15, 60),
    (188, -15, 60),
    (177, -15, 60),
    (166, -15, 60),
    (155, -15, 60),
    (144, -15, 60),
    (133, -15, 60),
    (122, -15, 60),
    (111, -15, 60),
    (100, -15, 60),
    (89, -15, 60),
    (78, -15, 60),
    (67, -15, 60),
    (56, -15, 60),
    (45, -15, 60),
    (34, -15, 60),
    (23, -15, 60),
    (12, -15, 60),
    (199, -15, 0),
    (188, -15, 0),
    (177, -15, 0),
    (166, -15, 0),
    (155, -15, 0),
    (144, -15, 0),
    (133, -15, 0),
    (122, -15, 0),
    (111, -15, 0),
    (100, -15, 0),
    (89, -15, 0),
    (78, -15, 0),
    (67, -15, 0),
    (56, -15, 0),
    (45, -15, 0),
    (34, -15, 0),
    (23, -15, 0),
    (12, -15, 0),
]))
fillet.Radius = 8

doc.recompute()
